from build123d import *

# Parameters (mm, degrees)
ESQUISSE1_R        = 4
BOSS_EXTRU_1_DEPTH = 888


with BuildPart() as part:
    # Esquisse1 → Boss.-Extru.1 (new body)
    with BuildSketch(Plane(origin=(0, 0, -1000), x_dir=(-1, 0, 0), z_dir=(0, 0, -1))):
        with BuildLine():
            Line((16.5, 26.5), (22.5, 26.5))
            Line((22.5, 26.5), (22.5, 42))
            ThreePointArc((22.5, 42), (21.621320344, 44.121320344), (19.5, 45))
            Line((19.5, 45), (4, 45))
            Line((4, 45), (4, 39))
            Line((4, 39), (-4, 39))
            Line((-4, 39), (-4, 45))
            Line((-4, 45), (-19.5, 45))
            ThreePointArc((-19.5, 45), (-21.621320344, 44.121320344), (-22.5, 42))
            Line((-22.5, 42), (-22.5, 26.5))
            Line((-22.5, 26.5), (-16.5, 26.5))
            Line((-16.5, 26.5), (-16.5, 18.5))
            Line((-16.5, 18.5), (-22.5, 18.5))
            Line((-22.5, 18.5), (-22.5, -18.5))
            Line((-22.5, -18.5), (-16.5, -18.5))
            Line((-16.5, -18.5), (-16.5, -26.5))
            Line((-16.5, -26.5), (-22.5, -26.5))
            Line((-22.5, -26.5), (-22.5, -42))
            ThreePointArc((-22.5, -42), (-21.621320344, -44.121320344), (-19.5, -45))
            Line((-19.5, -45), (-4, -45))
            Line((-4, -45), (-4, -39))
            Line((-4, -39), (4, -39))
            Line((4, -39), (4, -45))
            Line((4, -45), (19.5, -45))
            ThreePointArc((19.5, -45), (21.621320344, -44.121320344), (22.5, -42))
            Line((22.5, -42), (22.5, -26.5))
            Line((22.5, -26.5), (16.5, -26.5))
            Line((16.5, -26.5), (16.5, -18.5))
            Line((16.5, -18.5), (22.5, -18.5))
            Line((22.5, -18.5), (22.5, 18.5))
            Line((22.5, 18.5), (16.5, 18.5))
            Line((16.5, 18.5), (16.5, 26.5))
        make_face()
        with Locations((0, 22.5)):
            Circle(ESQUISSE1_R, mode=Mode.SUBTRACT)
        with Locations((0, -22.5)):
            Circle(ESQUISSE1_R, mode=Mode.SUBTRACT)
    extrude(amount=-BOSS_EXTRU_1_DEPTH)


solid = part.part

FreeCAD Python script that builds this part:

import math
import FreeCAD as App
import Part
import Sketcher

V = App.Vector

doc = App.newDocument("Part")
body = doc.addObject("PartDesign::Body", "Body")

sketch1 = doc.addObject("Sketcher::SketchObject", "Sketch")
body.addObject(sketch1)
sketch1.AttachmentSupport = (doc.XY_Plane, [""])
sketch1.MapMode = "FlatFace"
sketch1.AttachmentOffset = App.Placement(V(0, 0, -1000), App.Rotation())
sketch1.addGeometry([
    Part.LineSegment(V(-16.5, 26.5, 0), V(-22.5, 26.5, 0)),
    Part.LineSegment(V(-22.5, 26.5, 0), V(-22.5, 42, 0)),
    Part.ArcOfCircle(Part.Circle(V(-19.5, 42, 0), V(0, 0, 1), 3), math.radians(90), math.radians(180)),
    Part.LineSegment(V(-19.5, 45, 0), V(-4, 45, 0)),
    Part.LineSegment(V(-4, 45, 0), V(-4, 39, 0)),
    Part.LineSegment(V(-4, 39, 0), V(4, 39, 0)),
    Part.LineSegment(V(4, 39, 0), V(4, 45, 0)),
    Part.LineSegment(V(4, 45, 0), V(19.5, 45, 0)),
    Part.ArcOfCircle(Part.Circle(V(19.5, 42, 0), V(0, 0, 1), 3), math.radians(0), math.radians(90)),
    Part.LineSegment(V(22.5, 42, 0), V(22.5, 26.5, 0)),
    Part.LineSegment(V(22.5, 26.5, 0), V(16.5, 26.5, 0)),
    Part.LineSegment(V(16.5, 26.5, 0), V(16.5, 18.5, 0)),
    Part.LineSegment(V(16.5, 18.5, 0), V(22.5, 18.5, 0)),
    Part.LineSegment(V(22.5, 18.5, 0), V(22.5, -18.5, 0)),
    Part.LineSegment(V(22.5, -18.5, 0), V(16.5, -18.5, 0)),
    Part.LineSegment(V(16.5, -18.5, 0), V(16.5, -26.5, 0)),
    Part.LineSegment(V(16.5, -26.5, 0), V(22.5, -26.5, 0)),
    Part.LineSegment(V(22.5, -26.5, 0), V(22.5, -42, 0)),
    Part.ArcOfCircle(Part.Circle(V(19.5, -42, 0), V(0, 0, 1), 3), math.radians(-90), math.radians(0)),
    Part.LineSegment(V(19.5, -45, 0), V(4, -45, 0)),
    Part.LineSegment(V(4, -45, 0), V(4, -39, 0)),
    Part.LineSegment(V(4, -39, 0), V(-4, -39, 0)),
    Part.LineSegment(V(-4, -39, 0), V(-4, -45, 0)),
    Part.LineSegment(V(-4, -45, 0), V(-19.5, -45, 0)),
    Part.ArcOfCircle(Part.Circle(V(-19.5, -42, 0), V(0, 0, 1), 3), math.radians(180), math.radians(270)),
    Part.LineSegment(V(-22.5, -42, 0), V(-22.5, -26.5, 0)),
    Part.LineSegment(V(-22.5, -26.5, 0), V(-16.5, -26.5, 0)),
    Part.LineSegment(V(-16.5, -26.5, 0), V(-16.5, -18.5, 0)),
    Part.LineSegment(V(-16.5, -18.5, 0), V(-22.5, -18.5, 0)),
    Part.LineSegment(V(-22.5, -18.5, 0), V(-22.5, 18.5, 0)),
    Part.LineSegment(V(-22.5, 18.5, 0), V(-16.5, 18.5, 0)),
    Part.LineSegment(V(-16.5, 18.5, 0), V(-16.5, 26.5, 0)),
    Part.Circle(V(0, -22.5, 0), V(0, 0, 1), 4),
    Part.Circle(V(0, 22.5, 0), V(0, 0, 1), 4),
], False)
sketch1.addConstraint([
    Sketcher.Constraint("Coincident", 0, 2, 1, 1),
    Sketcher.Constraint("Tangent", 1, 2, 2, 2),
    Sketcher.Constraint("Tangent", 2, 1, 3, 1),
    Sketcher.Constraint("Coincident", 3, 2, 4, 1),
    Sketcher.Constraint("Coincident", 4, 2, 5, 1),
    Sketcher.Constraint("Coincident", 5, 2, 6, 1),
    Sketcher.Constraint("Coincident", 6, 2, 7, 1),
    Sketcher.Constraint("Tangent", 7, 2, 8, 2),
    Sketcher.Constraint("Tangent", 8, 1, 9, 1),
    Sketcher.Constraint("Coincident", 9, 2, 10, 1),
    Sketcher.Constraint("Coincident", 10, 2, 11, 1),
    Sketcher.Constraint("Coincident", 11, 2, 12, 1),
    Sketcher.Constraint("Coincident", 12, 2, 13, 1),
    Sketcher.Constraint("Coincident", 13, 2, 14, 1),
    Sketcher.Constraint("Coincident", 14, 2, 15, 1),
    Sketcher.Constraint("Coincident", 15, 2, 16, 1),
    Sketcher.Constraint("Coincident", 16, 2, 17, 1),
    Sketcher.Constraint("Tangent", 17, 2, 18, 2),
    Sketcher.Constraint("Tangent", 18, 1, 19, 1),
    Sketcher.Constraint("Coincident", 19, 2, 20, 1),
    Sketcher.Constraint("Coincident", 20, 2, 21, 1),
    Sketcher.Constraint("Coincident", 21, 2, 22, 1),
    Sketcher.Constraint("Coincident", 22, 2, 23, 1),
    Sketcher.Constraint("Tangent", 23, 2, 24, 2),
    Sketcher.Constraint("Tangent", 24, 1, 25, 1),
    Sketcher.Constraint("Coincident", 25, 2, 26, 1),
    Sketcher.Constraint("Coincident", 26, 2, 27, 1),
    Sketcher.Constraint("Coincident", 27, 2, 28, 1),
    Sketcher.Constraint("Coincident", 28, 2, 29, 1),
    Sketcher.Constraint("Coincident", 29, 2, 30, 1),
    Sketcher.Constraint("Coincident", 30, 2, 31, 1),
    Sketcher.Constraint("Coincident", 31, 2, 0, 1),
    Sketcher.Constraint("Horizontal", 0),
    Sketcher.Constraint("Vertical", 1),
    Sketcher.Constraint("Horizontal", 3),
    Sketcher.Constraint("Vertical", 4),
    Sketcher.Constraint("Horizontal", 5),
    Sketcher.Constraint("Vertical", 6),
    Sketcher.Constraint("Horizontal", 7),
    Sketcher.Constraint("Vertical", 9),
    Sketcher.Constraint("Horizontal", 10),
    Sketcher.Constraint("Vertical", 11),
    Sketcher.Constraint("Horizontal", 12),
    Sketcher.Constraint("Vertical", 13),
    Sketcher.Constraint("Horizontal", 14),
    Sketcher.Constraint("Vertical", 15),
    Sketcher.Constraint("Horizontal", 16),
    Sketcher.Constraint("Vertical", 17),
    Sketcher.Constraint("Horizontal", 19),
    Sketcher.Constraint("Vertical", 20),
    Sketcher.Constraint("Horizontal", 21),
    Sketcher.Constraint("Vertical", 22),
    Sketcher.Constraint("Horizontal", 23),
    Sketcher.Constraint("Vertical", 25),
    Sketcher.Constraint("Horizontal", 26),
    Sketcher.Constraint("Vertical", 27),
    Sketcher.Constraint("Horizontal", 28),
    Sketcher.Constraint("Vertical", 29),
    Sketcher.Constraint("Horizontal", 30),
    Sketcher.Constraint("Vertical", 31),
    Sketcher.Constraint("Equal", 2, 8),
    Sketcher.Constraint("Equal", 8, 18),
    Sketcher.Constraint("Equal", 18, 24),
    Sketcher.Constraint("Equal", 32, 33),
    Sketcher.Constraint("Symmetric", 2, 3, 18, 3, -1, 1),
    Sketcher.Constraint("Symmetric", 8, 3, 24, 3, -1, 1),
    Sketcher.Constraint("Symmetric", 32, 3, 33, 3, -1, 1),
    Sketcher.Constraint("Symmetric", 4, 2, 20, 2, -1, 1),
    Sketcher.Constraint("Symmetric", 10, 2, 26, 2, -1, 1),
    Sketcher.Constraint("Symmetric", 12, 2, 28, 2, -1, 1),
    Sketcher.Constraint("Symmetric", 14, 2, 30, 2, -1, 1),
    Sketcher.Constraint("Symmetric", 2, 3, 8, 3, -2),
    Sketcher.Constraint("Symmetric", 15, 2, 26, 2, -2),
    Sketcher.Constraint("PointOnObject", 32, 3, -2),
    Sketcher.Constraint("Horizontal", 0, 2, 9, 2),
    Sketcher.Constraint("Horizontal", 14, 2, 27, 2),
    Sketcher.Constraint("Vertical", 9, 2, 12, 2),
    Sketcher.Constraint("Vertical", 6, 2, 19, 2),
    Sketcher.Constraint("Vertical", 4, 2, 21, 2),
    Sketcher.Constraint("Equal", 23, 1),
    Sketcher.Constraint("Equal", 30, 4),
    Sketcher.Constraint("Equal", 21, 11),
    Sketcher.Constraint("Diameter", 32, 8.0),
    Sketcher.Constraint("Radius", 2, 3.0),
    Sketcher.Constraint("DistanceX", 0, 2, 0, 1, 6.0),
    Sketcher.Constraint("DistanceX", 5, 1, 5, 2, 8.0),
    Sketcher.Constraint("DistanceY", 13, 2, 13, 1, 37.0),
    Sketcher.Constraint("DistanceX", 3, 1, 3, 2, 15.5),
    Sketcher.Constraint("DistanceY", 32, 3, 33, 3, 45.0),
])
pad1 = doc.addObject("PartDesign::Pad", "Pad")
body.addObject(pad1)
pad1.Profile = sketch1
pad1.Length = 888

doc.recompute()
